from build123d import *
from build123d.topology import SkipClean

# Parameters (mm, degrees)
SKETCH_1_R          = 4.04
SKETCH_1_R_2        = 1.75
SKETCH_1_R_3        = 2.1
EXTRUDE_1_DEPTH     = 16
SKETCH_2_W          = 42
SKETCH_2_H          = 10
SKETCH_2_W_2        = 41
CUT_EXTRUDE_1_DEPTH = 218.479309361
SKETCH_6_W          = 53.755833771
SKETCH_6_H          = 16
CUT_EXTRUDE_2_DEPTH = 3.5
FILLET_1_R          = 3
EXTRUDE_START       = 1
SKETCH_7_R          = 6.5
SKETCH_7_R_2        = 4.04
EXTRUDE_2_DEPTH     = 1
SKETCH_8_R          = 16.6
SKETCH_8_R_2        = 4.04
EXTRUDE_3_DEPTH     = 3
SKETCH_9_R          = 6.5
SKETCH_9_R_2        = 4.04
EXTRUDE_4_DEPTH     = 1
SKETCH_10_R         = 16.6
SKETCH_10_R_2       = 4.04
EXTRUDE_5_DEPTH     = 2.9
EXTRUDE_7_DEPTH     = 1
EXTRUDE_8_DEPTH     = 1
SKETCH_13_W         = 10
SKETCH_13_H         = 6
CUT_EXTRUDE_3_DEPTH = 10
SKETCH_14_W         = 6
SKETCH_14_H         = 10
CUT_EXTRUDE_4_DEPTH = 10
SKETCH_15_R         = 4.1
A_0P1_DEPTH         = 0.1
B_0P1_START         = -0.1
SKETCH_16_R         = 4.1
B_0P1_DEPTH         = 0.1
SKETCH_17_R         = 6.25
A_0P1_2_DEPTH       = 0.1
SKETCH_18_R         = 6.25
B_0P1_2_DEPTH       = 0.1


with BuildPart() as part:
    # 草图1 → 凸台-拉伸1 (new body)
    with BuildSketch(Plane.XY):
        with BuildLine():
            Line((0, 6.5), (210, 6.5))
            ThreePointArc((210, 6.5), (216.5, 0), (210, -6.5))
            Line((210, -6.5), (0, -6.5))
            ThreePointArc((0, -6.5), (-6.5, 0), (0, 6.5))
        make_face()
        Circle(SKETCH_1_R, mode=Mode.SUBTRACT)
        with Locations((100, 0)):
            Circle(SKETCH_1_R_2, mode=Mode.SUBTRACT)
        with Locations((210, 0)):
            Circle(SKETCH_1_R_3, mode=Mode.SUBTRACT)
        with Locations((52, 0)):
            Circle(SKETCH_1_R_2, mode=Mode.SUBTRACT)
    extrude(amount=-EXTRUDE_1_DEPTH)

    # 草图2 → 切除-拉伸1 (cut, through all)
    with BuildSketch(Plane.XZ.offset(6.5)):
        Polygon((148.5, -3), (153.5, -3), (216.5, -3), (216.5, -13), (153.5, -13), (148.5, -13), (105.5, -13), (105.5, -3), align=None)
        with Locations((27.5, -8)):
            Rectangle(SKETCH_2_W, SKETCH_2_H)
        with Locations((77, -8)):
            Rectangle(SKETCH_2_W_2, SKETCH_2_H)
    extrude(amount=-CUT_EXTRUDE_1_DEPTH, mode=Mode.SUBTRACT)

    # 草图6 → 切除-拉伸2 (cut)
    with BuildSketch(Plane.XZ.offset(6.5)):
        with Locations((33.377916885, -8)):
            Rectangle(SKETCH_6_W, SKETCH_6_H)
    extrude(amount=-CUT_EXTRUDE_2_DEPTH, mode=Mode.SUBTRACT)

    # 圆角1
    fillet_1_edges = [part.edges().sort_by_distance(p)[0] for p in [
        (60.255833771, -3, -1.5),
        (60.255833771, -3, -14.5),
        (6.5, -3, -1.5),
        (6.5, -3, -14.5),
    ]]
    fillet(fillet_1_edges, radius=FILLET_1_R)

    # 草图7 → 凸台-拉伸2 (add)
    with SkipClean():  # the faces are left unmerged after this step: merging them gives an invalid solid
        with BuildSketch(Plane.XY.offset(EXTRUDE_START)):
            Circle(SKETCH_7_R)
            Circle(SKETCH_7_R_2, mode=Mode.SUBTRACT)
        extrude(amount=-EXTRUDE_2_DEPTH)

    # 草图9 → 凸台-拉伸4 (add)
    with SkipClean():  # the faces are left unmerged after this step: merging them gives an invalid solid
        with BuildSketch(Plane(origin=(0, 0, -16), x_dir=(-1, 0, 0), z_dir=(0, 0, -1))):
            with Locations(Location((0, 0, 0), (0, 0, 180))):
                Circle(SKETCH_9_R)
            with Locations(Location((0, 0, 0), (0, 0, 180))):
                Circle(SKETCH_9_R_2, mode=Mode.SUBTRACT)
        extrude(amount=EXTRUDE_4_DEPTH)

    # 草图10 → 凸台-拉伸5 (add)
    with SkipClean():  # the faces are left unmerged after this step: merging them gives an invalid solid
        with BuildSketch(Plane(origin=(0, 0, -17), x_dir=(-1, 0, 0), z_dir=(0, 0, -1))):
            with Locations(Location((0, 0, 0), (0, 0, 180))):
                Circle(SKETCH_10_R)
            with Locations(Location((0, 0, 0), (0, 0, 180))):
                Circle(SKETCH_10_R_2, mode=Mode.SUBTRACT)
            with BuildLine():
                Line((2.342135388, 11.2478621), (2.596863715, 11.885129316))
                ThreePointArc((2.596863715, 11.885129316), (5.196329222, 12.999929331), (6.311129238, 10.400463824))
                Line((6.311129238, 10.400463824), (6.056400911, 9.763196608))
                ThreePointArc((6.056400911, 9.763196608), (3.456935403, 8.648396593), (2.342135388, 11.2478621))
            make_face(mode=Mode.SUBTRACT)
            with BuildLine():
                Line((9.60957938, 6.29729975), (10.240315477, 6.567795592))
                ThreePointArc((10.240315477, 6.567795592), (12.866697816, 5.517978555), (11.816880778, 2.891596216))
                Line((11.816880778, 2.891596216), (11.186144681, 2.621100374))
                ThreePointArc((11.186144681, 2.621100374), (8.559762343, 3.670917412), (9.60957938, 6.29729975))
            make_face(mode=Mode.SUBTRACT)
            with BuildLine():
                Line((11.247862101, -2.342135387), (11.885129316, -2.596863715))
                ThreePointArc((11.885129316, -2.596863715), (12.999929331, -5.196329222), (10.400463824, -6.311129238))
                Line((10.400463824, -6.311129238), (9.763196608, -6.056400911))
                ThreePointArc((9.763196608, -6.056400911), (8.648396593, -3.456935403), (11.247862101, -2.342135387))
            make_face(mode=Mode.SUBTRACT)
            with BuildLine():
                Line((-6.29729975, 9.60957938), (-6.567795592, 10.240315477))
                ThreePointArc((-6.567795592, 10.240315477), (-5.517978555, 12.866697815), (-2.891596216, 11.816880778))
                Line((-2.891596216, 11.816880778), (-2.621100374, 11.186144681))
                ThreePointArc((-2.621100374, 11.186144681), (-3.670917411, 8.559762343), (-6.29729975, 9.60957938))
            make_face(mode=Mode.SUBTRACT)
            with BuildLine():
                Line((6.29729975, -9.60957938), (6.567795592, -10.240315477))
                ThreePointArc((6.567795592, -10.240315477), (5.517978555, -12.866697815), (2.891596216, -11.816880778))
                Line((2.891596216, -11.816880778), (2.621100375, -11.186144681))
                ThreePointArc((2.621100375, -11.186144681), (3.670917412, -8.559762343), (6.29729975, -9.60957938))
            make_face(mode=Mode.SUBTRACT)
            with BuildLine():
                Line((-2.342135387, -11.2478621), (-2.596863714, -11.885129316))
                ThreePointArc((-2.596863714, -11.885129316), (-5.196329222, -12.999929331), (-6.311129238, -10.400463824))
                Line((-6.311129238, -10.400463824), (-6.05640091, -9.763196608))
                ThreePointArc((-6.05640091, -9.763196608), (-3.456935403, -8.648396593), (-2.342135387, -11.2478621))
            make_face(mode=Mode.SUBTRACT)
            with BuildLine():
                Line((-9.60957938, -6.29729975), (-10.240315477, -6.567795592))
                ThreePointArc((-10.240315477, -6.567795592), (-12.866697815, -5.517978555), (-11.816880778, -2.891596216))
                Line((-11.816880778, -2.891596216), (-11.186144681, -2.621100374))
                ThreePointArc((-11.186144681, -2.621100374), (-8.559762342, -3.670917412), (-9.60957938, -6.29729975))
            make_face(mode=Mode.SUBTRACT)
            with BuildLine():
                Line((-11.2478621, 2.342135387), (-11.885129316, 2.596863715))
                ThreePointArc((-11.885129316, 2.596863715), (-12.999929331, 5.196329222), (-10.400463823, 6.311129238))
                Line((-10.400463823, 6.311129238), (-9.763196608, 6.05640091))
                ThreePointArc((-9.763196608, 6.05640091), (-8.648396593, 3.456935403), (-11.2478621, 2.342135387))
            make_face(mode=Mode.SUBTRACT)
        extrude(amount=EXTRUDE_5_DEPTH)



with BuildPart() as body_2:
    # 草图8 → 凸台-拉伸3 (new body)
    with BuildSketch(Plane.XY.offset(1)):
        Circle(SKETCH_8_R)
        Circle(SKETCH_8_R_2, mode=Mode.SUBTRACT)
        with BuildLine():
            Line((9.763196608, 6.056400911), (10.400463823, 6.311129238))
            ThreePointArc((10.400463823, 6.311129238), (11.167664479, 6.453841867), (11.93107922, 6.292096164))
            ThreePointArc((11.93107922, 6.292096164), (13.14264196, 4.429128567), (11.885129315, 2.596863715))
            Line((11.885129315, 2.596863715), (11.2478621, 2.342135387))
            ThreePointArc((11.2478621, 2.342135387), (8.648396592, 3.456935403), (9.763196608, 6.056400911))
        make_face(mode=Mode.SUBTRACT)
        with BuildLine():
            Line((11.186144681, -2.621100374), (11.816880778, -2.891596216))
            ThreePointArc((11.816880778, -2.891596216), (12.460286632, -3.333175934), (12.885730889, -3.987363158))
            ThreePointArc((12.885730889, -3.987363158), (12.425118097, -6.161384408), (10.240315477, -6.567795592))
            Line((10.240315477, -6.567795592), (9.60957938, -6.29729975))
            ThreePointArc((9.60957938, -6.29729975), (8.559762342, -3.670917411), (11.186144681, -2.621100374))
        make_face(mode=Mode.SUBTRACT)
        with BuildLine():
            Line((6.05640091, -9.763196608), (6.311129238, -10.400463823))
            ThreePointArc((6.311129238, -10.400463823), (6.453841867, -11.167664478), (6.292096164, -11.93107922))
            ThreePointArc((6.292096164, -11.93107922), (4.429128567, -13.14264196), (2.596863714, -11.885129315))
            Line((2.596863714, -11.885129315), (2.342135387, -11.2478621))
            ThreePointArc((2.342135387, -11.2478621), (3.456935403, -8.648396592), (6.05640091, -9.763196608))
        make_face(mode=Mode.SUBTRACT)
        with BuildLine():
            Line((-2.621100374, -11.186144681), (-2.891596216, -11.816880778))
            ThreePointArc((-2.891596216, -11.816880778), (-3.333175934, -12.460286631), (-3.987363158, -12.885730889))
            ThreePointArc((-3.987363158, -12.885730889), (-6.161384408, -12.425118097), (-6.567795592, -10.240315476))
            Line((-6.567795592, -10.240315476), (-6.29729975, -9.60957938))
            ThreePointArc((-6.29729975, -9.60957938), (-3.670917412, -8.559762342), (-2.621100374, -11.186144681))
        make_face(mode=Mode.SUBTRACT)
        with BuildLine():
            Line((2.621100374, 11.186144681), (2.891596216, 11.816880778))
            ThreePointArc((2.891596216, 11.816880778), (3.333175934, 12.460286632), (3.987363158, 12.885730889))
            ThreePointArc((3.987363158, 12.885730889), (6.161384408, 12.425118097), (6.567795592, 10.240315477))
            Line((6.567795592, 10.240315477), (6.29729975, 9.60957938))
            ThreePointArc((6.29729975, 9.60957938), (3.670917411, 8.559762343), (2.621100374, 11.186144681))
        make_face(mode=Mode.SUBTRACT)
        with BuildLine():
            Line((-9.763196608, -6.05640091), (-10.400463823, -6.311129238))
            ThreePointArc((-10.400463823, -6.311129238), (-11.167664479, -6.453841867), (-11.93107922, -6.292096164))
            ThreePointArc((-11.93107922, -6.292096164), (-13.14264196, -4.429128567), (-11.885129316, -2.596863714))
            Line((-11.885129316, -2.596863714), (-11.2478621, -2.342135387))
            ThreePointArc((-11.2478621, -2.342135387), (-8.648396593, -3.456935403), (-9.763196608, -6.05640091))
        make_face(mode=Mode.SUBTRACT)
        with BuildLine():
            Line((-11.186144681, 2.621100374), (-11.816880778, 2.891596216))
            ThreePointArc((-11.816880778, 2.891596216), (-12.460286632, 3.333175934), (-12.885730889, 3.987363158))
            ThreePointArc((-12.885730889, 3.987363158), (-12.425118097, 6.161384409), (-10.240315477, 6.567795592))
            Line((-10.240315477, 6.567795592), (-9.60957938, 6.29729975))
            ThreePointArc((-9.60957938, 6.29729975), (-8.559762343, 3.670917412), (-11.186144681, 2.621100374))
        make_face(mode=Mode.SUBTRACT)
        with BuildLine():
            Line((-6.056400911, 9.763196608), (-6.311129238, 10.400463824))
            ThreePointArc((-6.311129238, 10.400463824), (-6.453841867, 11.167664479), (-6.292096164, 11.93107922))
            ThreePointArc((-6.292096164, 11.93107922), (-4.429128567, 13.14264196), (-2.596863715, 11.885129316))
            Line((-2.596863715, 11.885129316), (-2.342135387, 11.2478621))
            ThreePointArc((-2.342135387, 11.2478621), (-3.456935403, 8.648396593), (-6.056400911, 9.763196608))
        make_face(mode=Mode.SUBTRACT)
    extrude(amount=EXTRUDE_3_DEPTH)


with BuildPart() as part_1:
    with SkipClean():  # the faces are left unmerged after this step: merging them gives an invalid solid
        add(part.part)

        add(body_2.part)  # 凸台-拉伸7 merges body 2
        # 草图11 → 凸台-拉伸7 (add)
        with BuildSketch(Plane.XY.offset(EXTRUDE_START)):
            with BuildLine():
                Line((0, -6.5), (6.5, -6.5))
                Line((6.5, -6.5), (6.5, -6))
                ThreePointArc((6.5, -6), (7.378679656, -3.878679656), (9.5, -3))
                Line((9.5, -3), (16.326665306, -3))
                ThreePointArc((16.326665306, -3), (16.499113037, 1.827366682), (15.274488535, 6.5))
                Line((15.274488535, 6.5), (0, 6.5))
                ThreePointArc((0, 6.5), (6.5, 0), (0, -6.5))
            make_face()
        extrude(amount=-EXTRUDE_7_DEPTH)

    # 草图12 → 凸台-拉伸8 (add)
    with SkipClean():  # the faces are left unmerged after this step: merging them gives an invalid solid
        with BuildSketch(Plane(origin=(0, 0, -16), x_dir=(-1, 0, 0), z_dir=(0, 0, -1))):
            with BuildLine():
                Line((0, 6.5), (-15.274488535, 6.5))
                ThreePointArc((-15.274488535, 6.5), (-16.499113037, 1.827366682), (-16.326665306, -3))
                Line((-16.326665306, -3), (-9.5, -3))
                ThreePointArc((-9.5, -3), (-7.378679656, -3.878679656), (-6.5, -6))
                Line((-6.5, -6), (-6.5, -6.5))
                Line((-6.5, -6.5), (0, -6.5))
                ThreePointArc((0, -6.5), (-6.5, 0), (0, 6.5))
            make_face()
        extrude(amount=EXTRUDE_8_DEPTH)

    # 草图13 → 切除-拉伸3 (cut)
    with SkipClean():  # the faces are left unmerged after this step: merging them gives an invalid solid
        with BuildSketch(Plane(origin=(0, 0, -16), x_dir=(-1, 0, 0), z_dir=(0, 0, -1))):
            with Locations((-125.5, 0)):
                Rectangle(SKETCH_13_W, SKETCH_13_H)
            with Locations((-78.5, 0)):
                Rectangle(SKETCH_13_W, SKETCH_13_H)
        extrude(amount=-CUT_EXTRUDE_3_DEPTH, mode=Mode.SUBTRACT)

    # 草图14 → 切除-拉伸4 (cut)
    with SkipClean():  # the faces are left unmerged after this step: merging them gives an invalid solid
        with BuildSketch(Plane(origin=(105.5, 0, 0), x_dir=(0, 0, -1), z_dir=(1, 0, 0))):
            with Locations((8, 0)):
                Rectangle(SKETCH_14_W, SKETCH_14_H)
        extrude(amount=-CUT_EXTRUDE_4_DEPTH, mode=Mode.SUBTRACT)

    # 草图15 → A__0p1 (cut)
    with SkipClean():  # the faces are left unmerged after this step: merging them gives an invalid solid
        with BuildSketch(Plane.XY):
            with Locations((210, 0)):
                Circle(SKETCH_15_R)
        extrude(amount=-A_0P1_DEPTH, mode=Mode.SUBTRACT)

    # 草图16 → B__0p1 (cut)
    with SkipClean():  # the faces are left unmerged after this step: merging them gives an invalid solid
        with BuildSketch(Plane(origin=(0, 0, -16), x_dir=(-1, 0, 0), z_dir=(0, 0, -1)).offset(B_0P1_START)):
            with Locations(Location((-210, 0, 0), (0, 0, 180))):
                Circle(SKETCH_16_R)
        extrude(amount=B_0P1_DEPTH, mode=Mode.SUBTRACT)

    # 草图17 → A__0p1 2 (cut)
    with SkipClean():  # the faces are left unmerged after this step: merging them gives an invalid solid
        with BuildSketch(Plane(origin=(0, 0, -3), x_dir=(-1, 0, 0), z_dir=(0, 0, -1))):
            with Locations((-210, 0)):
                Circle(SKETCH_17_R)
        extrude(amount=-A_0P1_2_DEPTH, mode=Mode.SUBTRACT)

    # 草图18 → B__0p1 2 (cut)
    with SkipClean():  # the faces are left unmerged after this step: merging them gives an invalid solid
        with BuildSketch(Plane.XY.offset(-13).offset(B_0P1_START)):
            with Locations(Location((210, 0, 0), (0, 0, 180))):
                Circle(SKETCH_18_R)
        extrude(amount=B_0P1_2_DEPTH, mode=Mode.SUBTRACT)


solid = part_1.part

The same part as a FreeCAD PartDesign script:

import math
import FreeCAD as App
import Part
import Sketcher


def edges_at(feature, points):
    """Names of the edges that pass closest to the given points."""
    edges = feature.Shape.Edges
    near = lambda p: min(range(len(edges)), key=lambda i: edges[i].distToShape(Part.Vertex(*p))[0])
    return sorted({f"Edge{near(p) + 1}" for p in points})


def add_polygon(sketch, points):
    """Adds a closed chain of lines whose ends are joined by coincident constraints."""
    first, n = sketch.GeometryCount, len(points)
    for a, b in zip(points, points[1:] + points[:1]):
        sketch.addGeometry(Part.LineSegment(App.Vector(*a, 0), App.Vector(*b, 0)), False)
    for i in range(n):
        sketch.addConstraint(Sketcher.Constraint("Coincident", first + i, 2, first + (i + 1) % n, 1))

doc = App.newDocument("Part")
body = doc.addObject("PartDesign::Body", "Body")

# Sketch on XY plane
sketch1 = body.newObject("Sketcher::SketchObject", "Sketch")
sketch1.AttachmentSupport = (doc.getObject("XY_Plane"), [""])
sketch1.MapMode = "FlatFace"
sketch1.addGeometry(Part.LineSegment(App.Vector(210, 6.5, 0), App.Vector(0, 6.5, 0)), False)
sketch1.addGeometry(Part.ArcOfCircle(Part.Circle(App.Vector(0, 0, 0), App.Vector(0, 0, 1), 6.5), math.radians(90), math.radians(270)), False)
sketch1.addGeometry(Part.LineSegment(App.Vector(0, -6.5, 0), App.Vector(210, -6.5, 0)), False)
sketch1.addGeometry(Part.ArcOfCircle(Part.Circle(App.Vector(210, 0, 0), App.Vector(0, 0, 1), 6.5), math.radians(-90), math.radians(90)), False)
sketch1.addGeometry(Part.Circle(App.Vector(210, 0, 0), App.Vector(0, 0, 1), 2.1), False)
sketch1.addGeometry(Part.Circle(App.Vector(100, 0, 0), App.Vector(0, 0, 1), 1.8), False)
sketch1.addGeometry(Part.Circle(App.Vector(52, 0, 0), App.Vector(0, 0, 1), 1.8), False)
sketch1.addGeometry(Part.Circle(App.Vector(0, 0, 0), App.Vector(0, 0, 1), 4), False)
sketch1.addConstraint(Sketcher.Constraint("Tangent", 0, 2, 1, 1))
sketch1.addConstraint(Sketcher.Constraint("Tangent", 1, 2, 2, 1))
sketch1.addConstraint(Sketcher.Constraint("Tangent", 2, 2, 3, 1))
sketch1.addConstraint(Sketcher.Constraint("Tangent", 3, 2, 0, 1))
sketch1.addConstraint(Sketcher.Constraint("Horizontal", 0))
sketch1.addConstraint(Sketcher.Constraint("Horizontal", 2))
sketch1.addConstraint(Sketcher.Constraint("Coincident", 1, 3, -1, 1))
sketch1.addConstraint(Sketcher.Constraint("Coincident", 7, 3, -1, 1))
sketch1.addConstraint(Sketcher.Constraint("Coincident", 4, 3, 3, 3))
sketch1.addConstraint(Sketcher.Constraint("Equal", 5, 6))
sketch1.addConstraint(Sketcher.Constraint("PointOnObject", 5, 3, -1))
sketch1.addConstraint(Sketcher.Constraint("PointOnObject", 6, 3, -1))
sketch1.addConstraint(Sketcher.Constraint("Diameter", 4, 4.2))
sketch1.addConstraint(Sketcher.Constraint("Diameter", 5, 3.5))
sketch1.addConstraint(Sketcher.Constraint("Radius", 1, 6.5))
sketch1.addConstraint(Sketcher.Constraint("Diameter", 7, 8.08))
sketch1.addConstraint(Sketcher.Constraint("DistanceX", 0, 2, 0, 1, 210.0))
sketch1.addConstraint(Sketcher.Constraint("DistanceX", -1, 1, 5, 3, 100.0))
sketch1.addConstraint(Sketcher.Constraint("DistanceX", -1, 1, 6, 3, 52.0))
pad1 = body.newObject("PartDesign::Pad", "Pad")
pad1.Profile = sketch1
pad1.Length = 16
pad1.Reversed = True

# Sketch on XZ plane
sketch2 = body.newObject("Sketcher::SketchObject", "Sketch001")
sketch2.AttachmentSupport = (doc.getObject("XZ_Plane"), [""])
sketch2.MapMode = "FlatFace"
sketch2.AttachmentOffset = App.Placement(App.Vector(0, 0, 6.5), App.Rotation())
add_polygon(sketch2, [(216, -3), (106, -3), (106, -13), (216, -13)])  # lines 0-3
add_polygon(sketch2, [(6, -3), (6, -13), (48, -13), (48, -3)])  # lines 4-7
add_polygon(sketch2, [(56, -3), (56, -13), (98, -13), (98, -3)])  # lines 8-11
sketch2.addConstraint(Sketcher.Constraint("Horizontal", 0))
sketch2.addConstraint(Sketcher.Constraint("Vertical", 1))
sketch2.addConstraint(Sketcher.Constraint("Horizontal", 2))
sketch2.addConstraint(Sketcher.Constraint("Vertical", 3))
sketch2.addConstraint(Sketcher.Constraint("Vertical", 4))
sketch2.addConstraint(Sketcher.Constraint("Horizontal", 5))
sketch2.addConstraint(Sketcher.Constraint("Vertical", 6))
sketch2.addConstraint(Sketcher.Constraint("Horizontal", 7))
sketch2.addConstraint(Sketcher.Constraint("Vertical", 8))
sketch2.addConstraint(Sketcher.Constraint("Horizontal", 9))
sketch2.addConstraint(Sketcher.Constraint("Vertical", 10))
sketch2.addConstraint(Sketcher.Constraint("Horizontal", 11))
sketch2.addConstraint(Sketcher.Constraint("Horizontal", 2, 2, 4, 2))
sketch2.addConstraint(Sketcher.Constraint("Horizontal", 3, 2, 6, 2))
sketch2.addConstraint(Sketcher.Constraint("Horizontal", 5, 2, 8, 2))
sketch2.addConstraint(Sketcher.Constraint("Horizontal", 7, 2, 10, 2))
sketch2.addConstraint(Sketcher.Constraint("DistanceX", 0, 2, 0, 1, 111.0))
sketch2.addConstraint(Sketcher.Constraint("DistanceX", 5, 1, 5, 2, 42.0))
sketch2.addConstraint(Sketcher.Constraint("DistanceX", 9, 1, 9, 2, 41.0))
sketch2.addConstraint(Sketcher.Constraint("DistanceY", 1, 2, 1, 1, 10.0))
sketch2.addConstraint(Sketcher.Constraint("DistanceY", 0, 2, -1, 1, 3.0))
sketch2.addConstraint(Sketcher.Constraint("DistanceX", 4, 2, 1, 2, 99.0))
sketch2.addConstraint(Sketcher.Constraint("DistanceX", 5, 2, 8, 2, 8.0))
sketch2.addConstraint(Sketcher.Constraint("DistanceX", -1, 1, 0, 2, 105.5))
pocket1 = body.newObject("PartDesign::Pocket", "Pocket")
pocket1.Profile = sketch2
pocket1.Type = "ThroughAll"

# Sketch on XZ plane
sketch3 = body.newObject("Sketcher::SketchObject", "Sketch002")
sketch3.AttachmentSupport = (doc.getObject("XZ_Plane"), [""])
sketch3.MapMode = "FlatFace"
sketch3.AttachmentOffset = App.Placement(App.Vector(0, 0, 6.5), App.Rotation())
add_polygon(sketch3, [(6, 0), (6, -16), (60, -16), (60, 0)])  # lines 0-3
sketch3.addConstraint(Sketcher.Constraint("Vertical", 0))
sketch3.addConstraint(Sketcher.Constraint("Horizontal", 1))
sketch3.addConstraint(Sketcher.Constraint("Vertical", 2))
sketch3.addConstraint(Sketcher.Constraint("Horizontal", 3))
sketch3.addConstraint(Sketcher.Constraint("PointOnObject", 2, 2, -1))
sketch3.addConstraint(Sketcher.Constraint("DistanceY", 0, 2, 0, 1, 16.0))
sketch3.addConstraint(Sketcher.Constraint("DistanceX", -1, 1, 0, 2, 6.5))
sketch3.addConstraint(Sketcher.Constraint("DistanceX", 1, 1, 1, 2, 53.755834))
pocket2 = body.newObject("PartDesign::Pocket", "Pocket001")
pocket2.Profile = sketch3
pocket2.Length = 3.5
doc.recompute()

fillet = body.newObject("PartDesign::Fillet", "Fillet")
fillet.Base = (pocket2, edges_at(pocket2, [
    (60.256, -3, -1.5),
    (60.256, -3, -14.5),
    (6.5, -3, -1.5),
    (6.5, -3, -14.5),
]))
fillet.Radius = 3

# Sketch on XY plane
sketch4 = body.newObject("Sketcher::SketchObject", "Sketch003")
sketch4.AttachmentSupport = (doc.getObject("XY_Plane"), [""])
sketch4.MapMode = "FlatFace"
sketch4.AttachmentOffset = App.Placement(App.Vector(0, 0, 1), App.Rotation())
sketch4.addGeometry(Part.Circle(App.Vector(0, 0, 0), App.Vector(0, 0, 1), 6.5), False)
sketch4.addGeometry(Part.Circle(App.Vector(0, 0, 0), App.Vector(0, 0, 1), 4), False)
sketch4.addConstraint(Sketcher.Constraint("Coincident", 0, 3, -1, 1))
sketch4.addConstraint(Sketcher.Constraint("Coincident", 1, 3, -1, 1))
sketch4.addConstraint(Sketcher.Constraint("Diameter", 0, 13.0))
sketch4.addConstraint(Sketcher.Constraint("Diameter", 1, 8.08))
pad2 = body.newObject("PartDesign::Pad", "Pad001")
pad2.Profile = sketch4
pad2.Length = 1
pad2.Reversed = True

# Sketch on XY plane
sketch5 = body.newObject("Sketcher::SketchObject", "Sketch004")
sketch5.AttachmentSupport = (doc.getObject("XY_Plane"), [""])
sketch5.MapMode = "FlatFace"
sketch5.AttachmentOffset = App.Placement(App.Vector(0, 0, -16), App.Rotation())
sketch5.addGeometry(Part.Circle(App.Vector(0, 0, 0), App.Vector(0, 0, 1), 6.5), False)
sketch5.addGeometry(Part.Circle(App.Vector(0, 0, 0), App.Vector(0, 0, 1), 4), False)
sketch5.addConstraint(Sketcher.Constraint("Coincident", 0, 3, -1, 1))
sketch5.addConstraint(Sketcher.Constraint("Coincident", 1, 3, -1, 1))
sketch5.addConstraint(Sketcher.Constraint("Diameter", 0, 13.0))
sketch5.addConstraint(Sketcher.Constraint("Diameter", 1, 8.08))
pad3 = body.newObject("PartDesign::Pad", "Pad002")
pad3.Profile = sketch5
pad3.Length = 1
pad3.Reversed = True

# Sketch on XY plane
sketch6 = body.newObject("Sketcher::SketchObject", "Sketch005")
sketch6.AttachmentSupport = (doc.getObject("XY_Plane"), [""])
sketch6.MapMode = "FlatFace"
sketch6.AttachmentOffset = App.Placement(App.Vector(0, 0, -17), App.Rotation())
sketch6.addGeometry(Part.Circle(App.Vector(0, 0, 0), App.Vector(0, 0, 1), 16.6), False)
sketch6.addGeometry(Part.ArcOfCircle(Part.Circle(App.Vector(-4.2, 10.5, 0), App.Vector(0, 0, 1), 2), math.radians(-158), math.radians(22)), False)
sketch6.addGeometry(Part.LineSegment(App.Vector(-2.3, 11.2, 0), App.Vector(-2.6, 11.9, 0)), False)
sketch6.addGeometry(Part.ArcOfCircle(Part.Circle(App.Vector(-4.5, 11.1, 0), App.Vector(0, 0, 1), 2), math.radians(22), math.radians(202)), False)
sketch6.addGeometry(Part.LineSegment(App.Vector(-6.3, 10.4, 0), App.Vector(-6.1, 9.8, 0)), False)
sketch6.addGeometry(Part.ArcOfCircle(Part.Circle(App.Vector(-10.4, 4.5, 0), App.Vector(0, 0, 1), 2), math.radians(-113), math.radians(67)), False)
sketch6.addGeometry(Part.LineSegment(App.Vector(-9.6, 6.3, 0), App.Vector(-10.2, 6.6, 0)), False)
sketch6.addGeometry(Part.ArcOfCircle(Part.Circle(App.Vector(-11, 4.7, 0), App.Vector(0, 0, 1), 2), math.radians(67), math.radians(247)), False)
sketch6.addGeometry(Part.LineSegment(App.Vector(-11.8, 2.9, 0), App.Vector(-11.2, 2.6, 0)), False)
sketch6.addGeometry(Part.ArcOfCircle(Part.Circle(App.Vector(4.5, 10.4, 0), App.Vector(0, 0, 1), 2), math.radians(157), math.radians(337)), False)
sketch6.addGeometry(Part.LineSegment(App.Vector(6.3, 9.6, 0), App.Vector(6.6, 10.2, 0)), False)
sketch6.addGeometry(Part.ArcOfCircle(Part.Circle(App.Vector(4.7, 11, 0), App.Vector(0, 0, 1), 2), math.radians(-23), math.radians(157)), False)
sketch6.addGeometry(Part.LineSegment(App.Vector(2.9, 11.8, 0), App.Vector(2.6, 11.2, 0)), False)
sketch6.addGeometry(Part.Circle(App.Vector(0, 0, 0), App.Vector(0, 0, 1), 4), False)
sketch6.addGeometry(Part.ArcOfCircle(Part.Circle(App.Vector(10.5, 4.2, 0), App.Vector(0, 0, 1), 2), math.radians(112), math.radians(292)), False)
sketch6.addGeometry(Part.LineSegment(App.Vector(11.2, 2.3, 0), App.Vector(11.9, 2.6, 0)), False)
sketch6.addGeometry(Part.ArcOfCircle(Part.Circle(App.Vector(11.1, 4.5, 0), App.Vector(0, 0, 1), 2), math.radians(-68), math.radians(112)), False)
sketch6.addGeometry(Part.LineSegment(App.Vector(10.4, 6.3, 0), App.Vector(9.8, 6.1, 0)), False)
sketch6.addGeometry(Part.ArcOfCircle(Part.Circle(App.Vector(-10.5, -4.2, 0), App.Vector(0, 0, 1), 2), math.radians(-68), math.radians(112)), False)
sketch6.addGeometry(Part.LineSegment(App.Vector(-11.2, -2.3, 0), App.Vector(-11.9, -2.6, 0)), False)
sketch6.addGeometry(Part.ArcOfCircle(Part.Circle(App.Vector(-11.1, -4.5, 0), App.Vector(0, 0, 1), 2), math.radians(112), math.radians(292)), False)
sketch6.addGeometry(Part.LineSegment(App.Vector(-10.4, -6.3, 0), App.Vector(-9.8, -6.1, 0)), False)
sketch6.addGeometry(Part.ArcOfCircle(Part.Circle(App.Vector(-4.5, -10.4, 0), App.Vector(0, 0, 1), 2), math.radians(-23), math.radians(157)), False)
sketch6.addGeometry(Part.LineSegment(App.Vector(-6.3, -9.6, 0), App.Vector(-6.6, -10.2, 0)), False)
sketch6.addGeometry(Part.ArcOfCircle(Part.Circle(App.Vector(-4.7, -11, 0), App.Vector(0, 0, 1), 2), math.radians(157), math.radians(337)), False)
sketch6.addGeometry(Part.LineSegment(App.Vector(-2.9, -11.8, 0), App.Vector(-2.6, -11.2, 0)), False)
sketch6.addGeometry(Part.ArcOfCircle(Part.Circle(App.Vector(10.4, -4.5, 0), App.Vector(0, 0, 1), 2), math.radians(67), math.radians(247)), False)
sketch6.addGeometry(Part.LineSegment(App.Vector(9.6, -6.3, 0), App.Vector(10.2, -6.6, 0)), False)
sketch6.addGeometry(Part.ArcOfCircle(Part.Circle(App.Vector(11, -4.7, 0), App.Vector(0, 0, 1), 2), math.radians(-113), math.radians(67)), False)
sketch6.addGeometry(Part.LineSegment(App.Vector(11.8, -2.9, 0), App.Vector(11.2, -2.6, 0)), False)
sketch6.addGeometry(Part.ArcOfCircle(Part.Circle(App.Vector(4.2, -10.5, 0), App.Vector(0, 0, 1), 2), math.radians(22), math.radians(202)), False)
sketch6.addGeometry(Part.LineSegment(App.Vector(2.3, -11.2, 0), App.Vector(2.6, -11.9, 0)), False)
sketch6.addGeometry(Part.ArcOfCircle(Part.Circle(App.Vector(4.5, -11.1, 0), App.Vector(0, 0, 1), 2), math.radians(-158), math.radians(22)), False)
sketch6.addGeometry(Part.LineSegment(App.Vector(6.3, -10.4, 0), App.Vector(6.1, -9.8, 0)), False)
sketch6.addConstraint(Sketcher.Constraint("Tangent", 1, 2, 2, 1))
sketch6.addConstraint(Sketcher.Constraint("Tangent", 2, 2, 3, 1))
sketch6.addConstraint(Sketcher.Constraint("Tangent", 3, 2, 4, 1))
sketch6.addConstraint(Sketcher.Constraint("Tangent", 4, 2, 1, 1))
sketch6.addConstraint(Sketcher.Constraint("Tangent", 5, 2, 6, 1))
sketch6.addConstraint(Sketcher.Constraint("Tangent", 6, 2, 7, 1))
sketch6.addConstraint(Sketcher.Constraint("Tangent", 7, 2, 8, 1))
sketch6.addConstraint(Sketcher.Constraint("Tangent", 8, 2, 5, 1))
sketch6.addConstraint(Sketcher.Constraint("Tangent", 9, 2, 10, 1))
sketch6.addConstraint(Sketcher.Constraint("Tangent", 10, 2, 11, 1))
sketch6.addConstraint(Sketcher.Constraint("Tangent", 11, 2, 12, 1))
sketch6.addConstraint(Sketcher.Constraint("Tangent", 12, 2, 9, 1))
sketch6.addConstraint(Sketcher.Constraint("Tangent", 14, 2, 15, 1))
sketch6.addConstraint(Sketcher.Constraint("Tangent", 15, 2, 16, 1))
sketch6.addConstraint(Sketcher.Constraint("Tangent", 16, 2, 17, 1))
sketch6.addConstraint(Sketcher.Constraint("Tangent", 17, 2, 14, 1))
sketch6.addConstraint(Sketcher.Constraint("Tangent", 18, 2, 19, 1))
sketch6.addConstraint(Sketcher.Constraint("Tangent", 19, 2, 20, 1))
sketch6.addConstraint(Sketcher.Constraint("Tangent", 20, 2, 21, 1))
sketch6.addConstraint(Sketcher.Constraint("Tangent", 21, 2, 18, 1))
sketch6.addConstraint(Sketcher.Constraint("Tangent", 22, 2, 23, 1))
sketch6.addConstraint(Sketcher.Constraint("Tangent", 23, 2, 24, 1))
sketch6.addConstraint(Sketcher.Constraint("Tangent", 24, 2, 25, 1))
sketch6.addConstraint(Sketcher.Constraint("Tangent", 25, 2, 22, 1))
sketch6.addConstraint(Sketcher.Constraint("Tangent", 26, 2, 27, 1))
sketch6.addConstraint(Sketcher.Constraint("Tangent", 27, 2, 28, 1))
sketch6.addConstraint(Sketcher.Constraint("Tangent", 28, 2, 29, 1))
sketch6.addConstraint(Sketcher.Constraint("Tangent", 29, 2, 26, 1))
sketch6.addConstraint(Sketcher.Constraint("Tangent", 30, 2, 31, 1))
sketch6.addConstraint(Sketcher.Constraint("Tangent", 31, 2, 32, 1))
sketch6.addConstraint(Sketcher.Constraint("Tangent", 32, 2, 33, 1))
sketch6.addConstraint(Sketcher.Constraint("Tangent", 33, 2, 30, 1))
sketch6.addConstraint(Sketcher.Constraint("Coincident", 0, 3, -1, 1))
sketch6.addConstraint(Sketcher.Constraint("Coincident", 13, 3, -1, 1))
sketch6.addConstraint(Sketcher.Constraint("Equal", 1, 3))
sketch6.addConstraint(Sketcher.Constraint("Equal", 3, 5))
sketch6.addConstraint(Sketcher.Constraint("Equal", 5, 7))
sketch6.addConstraint(Sketcher.Constraint("Equal", 7, 9))
sketch6.addConstraint(Sketcher.Constraint("Equal", 9, 11))
sketch6.addConstraint(Sketcher.Constraint("Equal", 11, 14))
sketch6.addConstraint(Sketcher.Constraint("Equal", 14, 16))
sketch6.addConstraint(Sketcher.Constraint("Equal", 16, 18))
sketch6.addConstraint(Sketcher.Constraint("Equal", 18, 20))
sketch6.addConstraint(Sketcher.Constraint("Equal", 20, 22))
sketch6.addConstraint(Sketcher.Constraint("Equal", 22, 24))
sketch6.addConstraint(Sketcher.Constraint("Equal", 24, 26))
sketch6.addConstraint(Sketcher.Constraint("Equal", 26, 28))
sketch6.addConstraint(Sketcher.Constraint("Equal", 28, 30))
sketch6.addConstraint(Sketcher.Constraint("Equal", 30, 32))
sketch6.addConstraint(Sketcher.Constraint("Symmetric", 14, 3, 18, 3, -1, 1))
sketch6.addConstraint(Sketcher.Constraint("Symmetric", 16, 3, 20, 3, -1, 1))
sketch6.addConstraint(Sketcher.Constraint("Symmetric", 9, 3, 22, 3, -1, 1))
sketch6.addConstraint(Sketcher.Constraint("Symmetric", 11, 3, 24, 3, -1, 1))
sketch6.addConstraint(Sketcher.Constraint("Symmetric", 5, 3, 26, 3, -1, 1))
sketch6.addConstraint(Sketcher.Constraint("Symmetric", 7, 3, 28, 3, -1, 1))
sketch6.addConstraint(Sketcher.Constraint("Symmetric", 1, 3, 30, 3, -1, 1))
sketch6.addConstraint(Sketcher.Constraint("Symmetric", 3, 3, 32, 3, -1, 1))
sketch6.addConstraint(Sketcher.Constraint("Perpendicular", 8, 10))
sketch6.addConstraint(Sketcher.Constraint("Perpendicular", 4, 15))
sketch6.addConstraint(Sketcher.Constraint("Equal", 4, 6))
sketch6.addConstraint(Sketcher.Constraint("Equal", 8, 10))
sketch6.addConstraint(Sketcher.Constraint("Equal", 12, 15))
sketch6.addConstraint(Sketcher.Constraint("Radius", 1, 2.0))
sketch6.addConstraint(Sketcher.Constraint("Diameter", 0, 33.2))
sketch6.addConstraint(Sketcher.Constraint("Diameter", 13, 8.08))
sketch6.addConstraint(Sketcher.Constraint("DistanceY", 9, 3, 1, 2, 0.85))
sketch6.addConstraint(Sketcher.Constraint("DistanceX", 26, 3, 14, 2, 0.85))
sketch6.addConstraint(Sketcher.Constraint("DistanceX", 10, 2, 16, 3, 4.575001))
sketch6.addConstraint(Sketcher.Constraint("DistanceY", 32, 3, 27, 2, 4.575001))
sketch6.addConstraint(Sketcher.Constraint("DistanceY", -1, 1, 5, 3, 4.4592))
sketch6.addConstraint(Sketcher.Constraint("DistanceX", 7, 3, -1, 1, 11.028598))
sketch6.addConstraint(Sketcher.Constraint("DistanceX", -1, 1, 9, 3, 4.4592))
sketch6.addConstraint(Sketcher.Constraint("DistanceX", 4, 2, -1, 1, 6.056401))
sketch6.addConstraint(Sketcher.Constraint("DistanceY", -1, 1, 5, 2, 6.2973))
sketch6.addConstraint(Sketcher.Constraint("DistanceY", -1, 1, 17, 2, 6.056401))
sketch6.addConstraint(Sketcher.Constraint("DistanceX", 7, 3, 3, 3, 6.574602))
pad4 = body.newObject("PartDesign::Pad", "Pad003")
pad4.Profile = sketch6
pad4.Length = 2.9
pad4.Reversed = True
body2 = doc.addObject("PartDesign::Body", "Body001")

# Sketch on XY plane
sketch7 = body2.newObject("Sketcher::SketchObject", "Sketch006")
sketch7.AttachmentSupport = (doc.getObject("XY_Plane001"), [""])
sketch7.MapMode = "FlatFace"
sketch7.AttachmentOffset = App.Placement(App.Vector(0, 0, 1), App.Rotation())
sketch7.addGeometry(Part.Circle(App.Vector(0, 0, 0), App.Vector(0, 0, 1), 16.6), False)
sketch7.addGeometry(Part.ArcOfCircle(Part.Circle(App.Vector(-4.5, -10.4, 0), App.Vector(0, 0, 1), 2), math.radians(-23), math.radians(157)), False)
sketch7.addGeometry(Part.LineSegment(App.Vector(-2.6, -11.2, 0), App.Vector(-2.9, -11.8, 0)), False)
sketch7.addGeometry(Part.ArcOfCircle(Part.Circle(App.Vector(-4.7, -11, 0), App.Vector(0, 0, 1), 2), math.radians(-68), math.radians(-23)), False)
sketch7.addGeometry(Part.ArcOfCircle(Part.Circle(App.Vector(-4.7, -11, 0), App.Vector(0, 0, 1), 2), math.radians(157), math.radians(292)), False)
sketch7.addGeometry(Part.LineSegment(App.Vector(-6.6, -10.2, 0), App.Vector(-6.3, -9.6, 0)), False)
sketch7.addGeometry(Part.ArcOfCircle(Part.Circle(App.Vector(-10.5, -4.2, 0), App.Vector(0, 0, 1), 2), math.radians(-68), math.radians(112)), False)
sketch7.addGeometry(Part.LineSegment(App.Vector(-9.8, -6.1, 0), App.Vector(-10.4, -6.3, 0)), False)
sketch7.addGeometry(Part.ArcOfCircle(Part.Circle(App.Vector(-11.1, -4.5, 0), App.Vector(0, 0, 1), 2), math.radians(-113), math.radians(-68)), False)
sketch7.addGeometry(Part.ArcOfCircle(Part.Circle(App.Vector(-11.1, -4.5, 0), App.Vector(0, 0, 1), 2), math.radians(112), math.radians(247)), False)
sketch7.addGeometry(Part.LineSegment(App.Vector(-11.9, -2.6, 0), App.Vector(-11.2, -2.3, 0)), False)
sketch7.addGeometry(Part.Circle(App.Vector(0, 0, 0), App.Vector(0, 0, 1), 4), False)
sketch7.addGeometry(Part.ArcOfCircle(Part.Circle(App.Vector(4.2, -10.5, 0), App.Vector(0, 0, 1), 2), math.radians(22), math.radians(202)), False)
sketch7.addGeometry(Part.LineSegment(App.Vector(6.1, -9.8, 0), App.Vector(6.3, -10.4, 0)), False)
sketch7.addGeometry(Part.ArcOfCircle(Part.Circle(App.Vector(4.5, -11.1, 0), App.Vector(0, 0, 1), 2), math.radians(-23), math.radians(22)), False)
sketch7.addGeometry(Part.ArcOfCircle(Part.Circle(App.Vector(4.5, -11.1, 0), App.Vector(0, 0, 1), 2), math.radians(-158), math.radians(-23)), False)
sketch7.addGeometry(Part.LineSegment(App.Vector(2.6, -11.9, 0), App.Vector(2.3, -11.2, 0)), False)
sketch7.addGeometry(Part.ArcOfCircle(Part.Circle(App.Vector(10.4, -4.5, 0), App.Vector(0, 0, 1), 2), math.radians(67), math.radians(247)), False)
sketch7.addGeometry(Part.LineSegment(App.Vector(11.2, -2.6, 0), App.Vector(11.8, -2.9, 0)), False)
sketch7.addGeometry(Part.ArcOfCircle(Part.Circle(App.Vector(11, -4.7, 0), App.Vector(0, 0, 1), 2), math.radians(22), math.radians(67)), False)
sketch7.addGeometry(Part.ArcOfCircle(Part.Circle(App.Vector(11, -4.7, 0), App.Vector(0, 0, 1), 2), math.radians(-113), math.radians(22)), False)
sketch7.addGeometry(Part.LineSegment(App.Vector(10.2, -6.6, 0), App.Vector(9.6, -6.3, 0)), False)
sketch7.addGeometry(Part.ArcOfCircle(Part.Circle(App.Vector(-10.4, 4.5, 0), App.Vector(0, 0, 1), 2), math.radians(-113), math.radians(67)), False)
sketch7.addGeometry(Part.LineSegment(App.Vector(-11.2, 2.6, 0), App.Vector(-11.8, 2.9, 0)), False)
sketch7.addGeometry(Part.ArcOfCircle(Part.Circle(App.Vector(-11, 4.7, 0), App.Vector(0, 0, 1), 2), math.radians(-158), math.radians(-113)), False)
sketch7.addGeometry(Part.ArcOfCircle(Part.Circle(App.Vector(-11, 4.7, 0), App.Vector(0, 0, 1), 2), math.radians(67), math.radians(202)), False)
sketch7.addGeometry(Part.LineSegment(App.Vector(-10.2, 6.6, 0), App.Vector(-9.6, 6.3, 0)), False)
sketch7.addGeometry(Part.ArcOfCircle(Part.Circle(App.Vector(-4.2, 10.5, 0), App.Vector(0, 0, 1), 2), math.radians(-158), math.radians(22)), False)
sketch7.addGeometry(Part.LineSegment(App.Vector(-6.1, 9.8, 0), App.Vector(-6.3, 10.4, 0)), False)
sketch7.addGeometry(Part.ArcOfCircle(Part.Circle(App.Vector(-4.5, 11.1, 0), App.Vector(0, 0, 1), 2), math.radians(157), math.radians(202)), False)
sketch7.addGeometry(Part.ArcOfCircle(Part.Circle(App.Vector(-4.5, 11.1, 0), App.Vector(0, 0, 1), 2), math.radians(22), math.radians(157)), False)
sketch7.addGeometry(Part.LineSegment(App.Vector(-2.6, 11.9, 0), App.Vector(-2.3, 11.2, 0)), False)
sketch7.addGeometry(Part.ArcOfCircle(Part.Circle(App.Vector(10.5, 4.2, 0), App.Vector(0, 0, 1), 2), math.radians(112), math.radians(292)), False)
sketch7.addGeometry(Part.LineSegment(App.Vector(9.8, 6.1, 0), App.Vector(10.4, 6.3, 0)), False)
sketch7.addGeometry(Part.ArcOfCircle(Part.Circle(App.Vector(11.1, 4.5, 0), App.Vector(0, 0, 1), 2), math.radians(67), math.radians(112)), False)
sketch7.addGeometry(Part.ArcOfCircle(Part.Circle(App.Vector(11.1, 4.5, 0), App.Vector(0, 0, 1), 2), math.radians(-68), math.radians(67)), False)
sketch7.addGeometry(Part.LineSegment(App.Vector(11.9, 2.6, 0), App.Vector(11.2, 2.3, 0)), False)
sketch7.addGeometry(Part.ArcOfCircle(Part.Circle(App.Vector(4.5, 10.4, 0), App.Vector(0, 0, 1), 2), math.radians(157), math.radians(337)), False)
sketch7.addGeometry(Part.LineSegment(App.Vector(2.6, 11.2, 0), App.Vector(2.9, 11.8, 0)), False)
sketch7.addGeometry(Part.ArcOfCircle(Part.Circle(App.Vector(4.7, 11, 0), App.Vector(0, 0, 1), 2), math.radians(112), math.radians(157)), False)
sketch7.addGeometry(Part.ArcOfCircle(Part.Circle(App.Vector(4.7, 11, 0), App.Vector(0, 0, 1), 2), math.radians(-23), math.radians(112)), False)
sketch7.addGeometry(Part.LineSegment(App.Vector(6.6, 10.2, 0), App.Vector(6.3, 9.6, 0)), False)
sketch7.addConstraint(Sketcher.Constraint("Tangent", 1, 1, 2, 1))
sketch7.addConstraint(Sketcher.Constraint("Tangent", 2, 2, 3, 2))
sketch7.addConstraint(Sketcher.Constraint("Tangent", 3, 1, 4, 2))
sketch7.addConstraint(Sketcher.Constraint("Tangent", 4, 1, 5, 1))
sketch7.addConstraint(Sketcher.Constraint("Tangent", 5, 2, 1, 2))
sketch7.addConstraint(Sketcher.Constraint("Tangent", 6, 1, 7, 1))
sketch7.addConstraint(Sketcher.Constraint("Tangent", 7, 2, 8, 2))
sketch7.addConstraint(Sketcher.Constraint("Tangent", 8, 1, 9, 2))
sketch7.addConstraint(Sketcher.Constraint("Tangent", 9, 1, 10, 1))
sketch7.addConstraint(Sketcher.Constraint("Tangent", 10, 2, 6, 2))
sketch7.addConstraint(Sketcher.Constraint("Tangent", 12, 1, 13, 1))
sketch7.addConstraint(Sketcher.Constraint("Tangent", 13, 2, 14, 2))
sketch7.addConstraint(Sketcher.Constraint("Tangent", 14, 1, 15, 2))
sketch7.addConstraint(Sketcher.Constraint("Tangent", 15, 1, 16, 1))
sketch7.addConstraint(Sketcher.Constraint("Tangent", 16, 2, 12, 2))
sketch7.addConstraint(Sketcher.Constraint("Tangent", 17, 1, 18, 1))
sketch7.addConstraint(Sketcher.Constraint("Tangent", 18, 2, 19, 2))
sketch7.addConstraint(Sketcher.Constraint("Tangent", 19, 1, 20, 2))
sketch7.addConstraint(Sketcher.Constraint("Tangent", 20, 1, 21, 1))
sketch7.addConstraint(Sketcher.Constraint("Tangent", 21, 2, 17, 2))
sketch7.addConstraint(Sketcher.Constraint("Tangent", 22, 1, 23, 1))
sketch7.addConstraint(Sketcher.Constraint("Tangent", 23, 2, 24, 2))
sketch7.addConstraint(Sketcher.Constraint("Tangent", 24, 1, 25, 2))
sketch7.addConstraint(Sketcher.Constraint("Tangent", 25, 1, 26, 1))
sketch7.addConstraint(Sketcher.Constraint("Tangent", 26, 2, 22, 2))
sketch7.addConstraint(Sketcher.Constraint("Tangent", 27, 1, 28, 1))
sketch7.addConstraint(Sketcher.Constraint("Tangent", 28, 2, 29, 2))
sketch7.addConstraint(Sketcher.Constraint("Tangent", 29, 1, 30, 2))
sketch7.addConstraint(Sketcher.Constraint("Tangent", 30, 1, 31, 1))
sketch7.addConstraint(Sketcher.Constraint("Tangent", 31, 2, 27, 2))
sketch7.addConstraint(Sketcher.Constraint("Tangent", 32, 1, 33, 1))
sketch7.addConstraint(Sketcher.Constraint("Tangent", 33, 2, 34, 2))
sketch7.addConstraint(Sketcher.Constraint("Tangent", 34, 1, 35, 2))
sketch7.addConstraint(Sketcher.Constraint("Tangent", 35, 1, 36, 1))
sketch7.addConstraint(Sketcher.Constraint("Tangent", 36, 2, 32, 2))
sketch7.addConstraint(Sketcher.Constraint("Tangent", 37, 1, 38, 1))
sketch7.addConstraint(Sketcher.Constraint("Tangent", 38, 2, 39, 2))
sketch7.addConstraint(Sketcher.Constraint("Tangent", 39, 1, 40, 2))
sketch7.addConstraint(Sketcher.Constraint("Tangent", 40, 1, 41, 1))
sketch7.addConstraint(Sketcher.Constraint("Tangent", 41, 2, 37, 2))
sketch7.addConstraint(Sketcher.Constraint("Coincident", 0, 3, -1, 1))
sketch7.addConstraint(Sketcher.Constraint("Coincident", 11, 3, -1, 1))
sketch7.addConstraint(Sketcher.Constraint("Equal", 1, 3))
sketch7.addConstraint(Sketcher.Constraint("Equal", 3, 4))
sketch7.addConstraint(Sketcher.Constraint("Equal", 4, 6))
sketch7.addConstraint(Sketcher.Constraint("Equal", 6, 8))
sketch7.addConstraint(Sketcher.Constraint("Equal", 8, 9))
sketch7.addConstraint(Sketcher.Constraint("Equal", 9, 12))
sketch7.addConstraint(Sketcher.Constraint("Equal", 12, 14))
sketch7.addConstraint(Sketcher.Constraint("Equal", 14, 15))
sketch7.addConstraint(Sketcher.Constraint("Equal", 15, 17))
sketch7.addConstraint(Sketcher.Constraint("Equal", 17, 19))
sketch7.addConstraint(Sketcher.Constraint("Equal", 19, 20))
sketch7.addConstraint(Sketcher.Constraint("Equal", 20, 22))
sketch7.addConstraint(Sketcher.Constraint("Equal", 22, 24))
sketch7.addConstraint(Sketcher.Constraint("Equal", 24, 25))
sketch7.addConstraint(Sketcher.Constraint("Equal", 25, 27))
sketch7.addConstraint(Sketcher.Constraint("Equal", 27, 29))
sketch7.addConstraint(Sketcher.Constraint("Equal", 29, 30))
sketch7.addConstraint(Sketcher.Constraint("Equal", 30, 32))
sketch7.addConstraint(Sketcher.Constraint("Equal", 32, 34))
sketch7.addConstraint(Sketcher.Constraint("Equal", 34, 35))
sketch7.addConstraint(Sketcher.Constraint("Equal", 35, 37))
sketch7.addConstraint(Sketcher.Constraint("Equal", 37, 39))
sketch7.addConstraint(Sketcher.Constraint("Equal", 39, 40))
sketch7.addConstraint(Sketcher.Constraint("Symmetric", 17, 3, 22, 3, -1, 1))
sketch7.addConstraint(Sketcher.Constraint("Symmetric", 19, 3, 24, 3, -1, 1))
sketch7.addConstraint(Sketcher.Constraint("Symmetric", 12, 3, 27, 3, -1, 1))
sketch7.addConstraint(Sketcher.Constraint("Symmetric", 14, 3, 29, 3, -1, 1))
sketch7.addConstraint(Sketcher.Constraint("Symmetric", 6, 3, 32, 3, -1, 1))
sketch7.addConstraint(Sketcher.Constraint("Symmetric", 8, 3, 34, 3, -1, 1))
sketch7.addConstraint(Sketcher.Constraint("Symmetric", 1, 3, 37, 3, -1, 1))
sketch7.addConstraint(Sketcher.Constraint("Symmetric", 3, 3, 39, 3, -1, 1))
sketch7.addConstraint(Sketcher.Constraint("Perpendicular", 10, 13))
sketch7.addConstraint(Sketcher.Constraint("Perpendicular", 5, 18))
sketch7.addConstraint(Sketcher.Constraint("Equal", 5, 7))
sketch7.addConstraint(Sketcher.Constraint("Equal", 10, 13))
sketch7.addConstraint(Sketcher.Constraint("Equal", 16, 18))
sketch7.addConstraint(Sketcher.Constraint("Radius", 1, 2.0))
sketch7.addConstraint(Sketcher.Constraint("Diameter", 0, 33.2))
sketch7.addConstraint(Sketcher.Constraint("Diameter", 11, 8.08))
sketch7.addConstraint(Sketcher.Constraint("DistanceX", 1, 3, -1, 1, 4.4592))
sketch7.addConstraint(Sketcher.Constraint("DistanceY", 3, 3, -1, 1, 11.028598))
sketch7.addConstraint(Sketcher.Constraint("DistanceY", 17, 3, -1, 1, 4.4592))
sketch7.addConstraint(Sketcher.Constraint("DistanceX", -1, 1, 19, 3, 11.028598))
sketch7.addConstraint(Sketcher.Constraint("DistanceX", 1, 1, -1, 1, 2.6211))
sketch7.addConstraint(Sketcher.Constraint("DistanceY", 6, 1, -1, 1, 6.056401))
sketch7.addConstraint(Sketcher.Constraint("DistanceX", -1, 1, 12, 1, 6.056401))
sketch7.addConstraint(Sketcher.Constraint("Distance", 2, 0.686292))
sketch7.addConstraint(Sketcher.Constraint("DistanceX", 6, 3, -1, 1, 10.505529))
sketch7.addConstraint(Sketcher.Constraint("DistanceY", 6, 3, -1, 1, 4.199268))
sketch7.addConstraint(Sketcher.Constraint("DistanceY", 12, 3, -1, 1, 10.505529))
sketch7.addConstraint(Sketcher.Constraint("DistanceY", 3, 1, -1, 1, 12.885731))
sketch7.addConstraint(Sketcher.Constraint("DistanceX", 8, 1, -1, 1, 11.931079))
sketch7.addConstraint(Sketcher.Constraint("DistanceY", 14, 1, -1, 1, 11.931079))
sketch7.addConstraint(Sketcher.Constraint("DistanceX", -1, 1, 19, 1, 12.885731))
sketch7.addConstraint(Sketcher.Constraint("DistanceX", 24, 1, -1, 1, 12.885731))
sketch7.addConstraint(Sketcher.Constraint("DistanceY", -1, 1, 29, 1, 11.931079))
sketch7.addConstraint(Sketcher.Constraint("DistanceX", -1, 1, 34, 1, 11.931079))
sketch7.addConstraint(Sketcher.Constraint("DistanceY", -1, 1, 39, 1, 12.885731))
pad5 = body2.newObject("PartDesign::Pad", "Pad004")
pad5.Profile = sketch7
pad5.Length = 3
doc.recompute()

boolean = body.newObject("PartDesign::Boolean", "Boolean")
boolean.Type = "Fuse"
boolean.addObjects([body2])

# Sketch on XY plane
sketch8 = body.newObject("Sketcher::SketchObject", "Sketch007")
sketch8.AttachmentSupport = (doc.getObject("XY_Plane"), [""])
sketch8.MapMode = "FlatFace"
sketch8.AttachmentOffset = App.Placement(App.Vector(0, 0, 1), App.Rotation())
sketch8.addGeometry(Part.LineSegment(App.Vector(0, -6.5, 0), App.Vector(6.5, -6.5, 0)), False)
sketch8.addGeometry(Part.LineSegment(App.Vector(6.5, -6.5, 0), App.Vector(6.5, -6, 0)), False)
sketch8.addGeometry(Part.ArcOfCircle(Part.Circle(App.Vector(9.5, -6, 0), App.Vector(0, 0, 1), 3), math.radians(90), math.radians(180)), False)
sketch8.addGeometry(Part.LineSegment(App.Vector(9.5, -3, 0), App.Vector(16.3, -3, 0)), False)
sketch8.addGeometry(Part.ArcOfCircle(Part.Circle(App.Vector(0, 0, 0), App.Vector(0, 0, 1), 16.6), math.radians(-10), math.radians(23)), False)
sketch8.addGeometry(Part.LineSegment(App.Vector(15.3, 6.5, 0), App.Vector(0, 6.5, 0)), False)
sketch8.addGeometry(Part.ArcOfCircle(Part.Circle(App.Vector(0, 0, 0), App.Vector(0, 0, 1), 6.5), math.radians(-90), math.radians(90)), False)
sketch8.addConstraint(Sketcher.Constraint("Coincident", 0, 2, 1, 1))
sketch8.addConstraint(Sketcher.Constraint("Tangent", 1, 2, 2, 2))
sketch8.addConstraint(Sketcher.Constraint("Tangent", 2, 1, 3, 1))
sketch8.addConstraint(Sketcher.Constraint("Coincident", 3, 2, 4, 1))
sketch8.addConstraint(Sketcher.Constraint("Coincident", 4, 2, 5, 1))
sketch8.addConstraint(Sketcher.Constraint("Tangent", 5, 2, 6, 2))
sketch8.addConstraint(Sketcher.Constraint("Tangent", 6, 1, 0, 1))
sketch8.addConstraint(Sketcher.Constraint("Horizontal", 0))
sketch8.addConstraint(Sketcher.Constraint("Vertical", 1))
sketch8.addConstraint(Sketcher.Constraint("Horizontal", 3))
sketch8.addConstraint(Sketcher.Constraint("Horizontal", 5))
sketch8.addConstraint(Sketcher.Constraint("Coincident", 4, 3, -1, 1))
sketch8.addConstraint(Sketcher.Constraint("Coincident", 6, 3, -1, 1))
sketch8.addConstraint(Sketcher.Constraint("Radius", 2, 3.0))
sketch8.addConstraint(Sketcher.Constraint("Radius", 4, 16.6))
sketch8.addConstraint(Sketcher.Constraint("Radius", 6, 6.5))
sketch8.addConstraint(Sketcher.Constraint("DistanceX", 0, 1, 0, 2, 6.5))
sketch8.addConstraint(Sketcher.Constraint("DistanceY", 1, 1, 1, 2, 0.5))
pad6 = body.newObject("PartDesign::Pad", "Pad005")
pad6.Profile = sketch8
pad6.Length = 1
pad6.Reversed = True

# Sketch on XY plane
sketch9 = body.newObject("Sketcher::SketchObject", "Sketch008")
sketch9.AttachmentSupport = (doc.getObject("XY_Plane"), [""])
sketch9.MapMode = "FlatFace"
sketch9.AttachmentOffset = App.Placement(App.Vector(0, 0, -16), App.Rotation())
sketch9.addGeometry(Part.LineSegment(App.Vector(0, 6.5, 0), App.Vector(15.3, 6.5, 0)), False)
sketch9.addGeometry(Part.ArcOfCircle(Part.Circle(App.Vector(0, 0, 0), App.Vector(0, 0, 1), 16.6), math.radians(-10), math.radians(23)), False)
sketch9.addGeometry(Part.LineSegment(App.Vector(16.3, -3, 0), App.Vector(9.5, -3, 0)), False)
sketch9.addGeometry(Part.ArcOfCircle(Part.Circle(App.Vector(9.5, -6, 0), App.Vector(0, 0, 1), 3), math.radians(90), math.radians(180)), False)
sketch9.addGeometry(Part.LineSegment(App.Vector(6.5, -6, 0), App.Vector(6.5, -6.5, 0)), False)
sketch9.addGeometry(Part.LineSegment(App.Vector(6.5, -6.5, 0), App.Vector(0, -6.5, 0)), False)
sketch9.addGeometry(Part.ArcOfCircle(Part.Circle(App.Vector(0, 0, 0), App.Vector(0, 0, 1), 6.5), math.radians(-90), math.radians(90)), False)
sketch9.addConstraint(Sketcher.Constraint("Coincident", 0, 2, 1, 2))
sketch9.addConstraint(Sketcher.Constraint("Coincident", 1, 1, 2, 1))
sketch9.addConstraint(Sketcher.Constraint("Tangent", 2, 2, 3, 1))
sketch9.addConstraint(Sketcher.Constraint("Tangent", 3, 2, 4, 1))
sketch9.addConstraint(Sketcher.Constraint("Coincident", 4, 2, 5, 1))
sketch9.addConstraint(Sketcher.Constraint("Tangent", 5, 2, 6, 1))
sketch9.addConstraint(Sketcher.Constraint("Tangent", 6, 2, 0, 1))
sketch9.addConstraint(Sketcher.Constraint("Horizontal", 0))
sketch9.addConstraint(Sketcher.Constraint("Horizontal", 2))
sketch9.addConstraint(Sketcher.Constraint("Vertical", 4))
sketch9.addConstraint(Sketcher.Constraint("Horizontal", 5))
sketch9.addConstraint(Sketcher.Constraint("Coincident", 1, 3, -1, 1))
sketch9.addConstraint(Sketcher.Constraint("Coincident", 6, 3, -1, 1))
sketch9.addConstraint(Sketcher.Constraint("Radius", 3, 3.0))
sketch9.addConstraint(Sketcher.Constraint("Radius", 1, 16.6))
sketch9.addConstraint(Sketcher.Constraint("Radius", 6, 6.5))
sketch9.addConstraint(Sketcher.Constraint("DistanceX", 5, 2, 5, 1, 6.5))
sketch9.addConstraint(Sketcher.Constraint("DistanceY", 4, 2, 4, 1, 0.5))
pad7 = body.newObject("PartDesign::Pad", "Pad006")
pad7.Profile = sketch9
pad7.Length = 1
pad7.Reversed = True

# Sketch on XY plane
sketch10 = body.newObject("Sketcher::SketchObject", "Sketch009")
sketch10.AttachmentSupport = (doc.getObject("XY_Plane"), [""])
sketch10.MapMode = "FlatFace"
sketch10.AttachmentOffset = App.Placement(App.Vector(0, 0, -16), App.Rotation())
add_polygon(sketch10, [(130, 3), (130, -3), (120, -3), (120, 3)])  # lines 0-3
add_polygon(sketch10, [(84, 3), (84, -3), (74, -3), (74, 3)])  # lines 4-7
sketch10.addConstraint(Sketcher.Constraint("Vertical", 0))
sketch10.addConstraint(Sketcher.Constraint("Horizontal", 1))
sketch10.addConstraint(Sketcher.Constraint("Vertical", 2))
sketch10.addConstraint(Sketcher.Constraint("Horizontal", 3))
sketch10.addConstraint(Sketcher.Constraint("Vertical", 4))
sketch10.addConstraint(Sketcher.Constraint("Horizontal", 5))
sketch10.addConstraint(Sketcher.Constraint("Vertical", 6))
sketch10.addConstraint(Sketcher.Constraint("Horizontal", 7))
sketch10.addConstraint(Sketcher.Constraint("Horizontal", 1, 2, 4, 2))
sketch10.addConstraint(Sketcher.Constraint("Horizontal", 3, 2, 6, 2))
sketch10.addConstraint(Sketcher.Constraint("Equal", 3, 5))
sketch10.addConstraint(Sketcher.Constraint("DistanceX", 1, 2, 1, 1, 10.0))
sketch10.addConstraint(Sketcher.Constraint("DistanceY", 0, 2, 0, 1, 6.0))
sketch10.addConstraint(Sketcher.Constraint("DistanceY", 0, 2, -1, 1, 3.0))
sketch10.addConstraint(Sketcher.Constraint("DistanceX", 4, 2, 1, 2, 37.0))
sketch10.addConstraint(Sketcher.Constraint("DistanceX", -1, 1, 0, 2, 130.5))
pocket3 = body.newObject("PartDesign::Pocket", "Pocket002")
pocket3.Profile = sketch10
pocket3.Length = 10
pocket3.Reversed = True

# Sketch on YZ plane
sketch11 = body.newObject("Sketcher::SketchObject", "Sketch010")
sketch11.AttachmentSupport = (doc.getObject("YZ_Plane"), [""])
sketch11.MapMode = "FlatFace"
sketch11.AttachmentOffset = App.Placement(App.Vector(0, 0, 105.5), App.Rotation())
add_polygon(sketch11, [(5, -5), (-5, -5), (-5, -11), (5, -11)])  # lines 0-3
sketch11.addConstraint(Sketcher.Constraint("Horizontal", 0))
sketch11.addConstraint(Sketcher.Constraint("Vertical", 1))
sketch11.addConstraint(Sketcher.Constraint("Horizontal", 2))
sketch11.addConstraint(Sketcher.Constraint("Vertical", 3))
sketch11.addConstraint(Sketcher.Constraint("DistanceX", 0, 2, 0, 1, 10.0))
sketch11.addConstraint(Sketcher.Constraint("DistanceY", 1, 2, 1, 1, 6.0))
sketch11.addConstraint(Sketcher.Constraint("DistanceX", 0, 2, -1, 1, 5.0))
sketch11.addConstraint(Sketcher.Constraint("DistanceY", 0, 2, -1, 1, 5.0))
pocket4 = body.newObject("PartDesign::Pocket", "Pocket003")
pocket4.Profile = sketch11
pocket4.Length = 10

# Sketch on XY plane
sketch12 = body.newObject("Sketcher::SketchObject", "Sketch011")
sketch12.AttachmentSupport = (doc.getObject("XY_Plane"), [""])
sketch12.MapMode = "FlatFace"
sketch12.addGeometry(Part.Circle(App.Vector(210, 0, 0), App.Vector(0, 0, 1), 4.1), False)
sketch12.addConstraint(Sketcher.Constraint("PointOnObject", 0, 3, -1))
sketch12.addConstraint(Sketcher.Constraint("Diameter", 0, 8.2))
sketch12.addConstraint(Sketcher.Constraint("DistanceX", -1, 1, 0, 3, 210.0))
pocket5 = body.newObject("PartDesign::Pocket", "Pocket004")
pocket5.Profile = sketch12
pocket5.Length = 0.1

# Sketch on XY plane
sketch13 = body.newObject("Sketcher::SketchObject", "Sketch012")
sketch13.AttachmentSupport = (doc.getObject("XY_Plane"), [""])
sketch13.MapMode = "FlatFace"
sketch13.AttachmentOffset = App.Placement(App.Vector(0, 0, -15.9), App.Rotation())
sketch13.addGeometry(Part.Circle(App.Vector(210, 0, 0), App.Vector(0, 0, 1), 4.1), False)
sketch13.addConstraint(Sketcher.Constraint("PointOnObject", 0, 3, -1))
sketch13.addConstraint(Sketcher.Constraint("Diameter", 0, 8.2))
sketch13.addConstraint(Sketcher.Constraint("DistanceX", -1, 1, 0, 3, 210.0))
pocket6 = body.newObject("PartDesign::Pocket", "Pocket005")
pocket6.Profile = sketch13
pocket6.Length = 0.1

# Sketch on XY plane
sketch14 = body.newObject("Sketcher::SketchObject", "Sketch013")
sketch14.AttachmentSupport = (doc.getObject("XY_Plane"), [""])
sketch14.MapMode = "FlatFace"
sketch14.AttachmentOffset = App.Placement(App.Vector(0, 0, -3), App.Rotation())
sketch14.addGeometry(Part.Circle(App.Vector(210, 0, 0), App.Vector(0, 0, 1), 6), False)
sketch14.addConstraint(Sketcher.Constraint("PointOnObject", 0, 3, -1))
sketch14.addConstraint(Sketcher.Constraint("Diameter", 0, 12.5))
sketch14.addConstraint(Sketcher.Constraint("DistanceX", -1, 1, 0, 3, 210.0))
pocket7 = body.newObject("PartDesign::Pocket", "Pocket006")
pocket7.Profile = sketch14
pocket7.Length = 0.1
pocket7.Reversed = True

# Sketch on XY plane
sketch15 = body.newObject("Sketcher::SketchObject", "Sketch014")
sketch15.AttachmentSupport = (doc.getObject("XY_Plane"), [""])
sketch15.MapMode = "FlatFace"
sketch15.AttachmentOffset = App.Placement(App.Vector(0, 0, -13.1), App.Rotation())
sketch15.addGeometry(Part.Circle(App.Vector(210, 0, 0), App.Vector(0, 0, 1), 6), False)
sketch15.addConstraint(Sketcher.Constraint("PointOnObject", 0, 3, -1))
sketch15.addConstraint(Sketcher.Constraint("Diameter", 0, 12.5))
sketch15.addConstraint(Sketcher.Constraint("DistanceX", -1, 1, 0, 3, 210.0))
pocket8 = body.newObject("PartDesign::Pocket", "Pocket007")
pocket8.Profile = sketch15
pocket8.Length = 0.1
pocket8.Reversed = True

doc.recompute()
